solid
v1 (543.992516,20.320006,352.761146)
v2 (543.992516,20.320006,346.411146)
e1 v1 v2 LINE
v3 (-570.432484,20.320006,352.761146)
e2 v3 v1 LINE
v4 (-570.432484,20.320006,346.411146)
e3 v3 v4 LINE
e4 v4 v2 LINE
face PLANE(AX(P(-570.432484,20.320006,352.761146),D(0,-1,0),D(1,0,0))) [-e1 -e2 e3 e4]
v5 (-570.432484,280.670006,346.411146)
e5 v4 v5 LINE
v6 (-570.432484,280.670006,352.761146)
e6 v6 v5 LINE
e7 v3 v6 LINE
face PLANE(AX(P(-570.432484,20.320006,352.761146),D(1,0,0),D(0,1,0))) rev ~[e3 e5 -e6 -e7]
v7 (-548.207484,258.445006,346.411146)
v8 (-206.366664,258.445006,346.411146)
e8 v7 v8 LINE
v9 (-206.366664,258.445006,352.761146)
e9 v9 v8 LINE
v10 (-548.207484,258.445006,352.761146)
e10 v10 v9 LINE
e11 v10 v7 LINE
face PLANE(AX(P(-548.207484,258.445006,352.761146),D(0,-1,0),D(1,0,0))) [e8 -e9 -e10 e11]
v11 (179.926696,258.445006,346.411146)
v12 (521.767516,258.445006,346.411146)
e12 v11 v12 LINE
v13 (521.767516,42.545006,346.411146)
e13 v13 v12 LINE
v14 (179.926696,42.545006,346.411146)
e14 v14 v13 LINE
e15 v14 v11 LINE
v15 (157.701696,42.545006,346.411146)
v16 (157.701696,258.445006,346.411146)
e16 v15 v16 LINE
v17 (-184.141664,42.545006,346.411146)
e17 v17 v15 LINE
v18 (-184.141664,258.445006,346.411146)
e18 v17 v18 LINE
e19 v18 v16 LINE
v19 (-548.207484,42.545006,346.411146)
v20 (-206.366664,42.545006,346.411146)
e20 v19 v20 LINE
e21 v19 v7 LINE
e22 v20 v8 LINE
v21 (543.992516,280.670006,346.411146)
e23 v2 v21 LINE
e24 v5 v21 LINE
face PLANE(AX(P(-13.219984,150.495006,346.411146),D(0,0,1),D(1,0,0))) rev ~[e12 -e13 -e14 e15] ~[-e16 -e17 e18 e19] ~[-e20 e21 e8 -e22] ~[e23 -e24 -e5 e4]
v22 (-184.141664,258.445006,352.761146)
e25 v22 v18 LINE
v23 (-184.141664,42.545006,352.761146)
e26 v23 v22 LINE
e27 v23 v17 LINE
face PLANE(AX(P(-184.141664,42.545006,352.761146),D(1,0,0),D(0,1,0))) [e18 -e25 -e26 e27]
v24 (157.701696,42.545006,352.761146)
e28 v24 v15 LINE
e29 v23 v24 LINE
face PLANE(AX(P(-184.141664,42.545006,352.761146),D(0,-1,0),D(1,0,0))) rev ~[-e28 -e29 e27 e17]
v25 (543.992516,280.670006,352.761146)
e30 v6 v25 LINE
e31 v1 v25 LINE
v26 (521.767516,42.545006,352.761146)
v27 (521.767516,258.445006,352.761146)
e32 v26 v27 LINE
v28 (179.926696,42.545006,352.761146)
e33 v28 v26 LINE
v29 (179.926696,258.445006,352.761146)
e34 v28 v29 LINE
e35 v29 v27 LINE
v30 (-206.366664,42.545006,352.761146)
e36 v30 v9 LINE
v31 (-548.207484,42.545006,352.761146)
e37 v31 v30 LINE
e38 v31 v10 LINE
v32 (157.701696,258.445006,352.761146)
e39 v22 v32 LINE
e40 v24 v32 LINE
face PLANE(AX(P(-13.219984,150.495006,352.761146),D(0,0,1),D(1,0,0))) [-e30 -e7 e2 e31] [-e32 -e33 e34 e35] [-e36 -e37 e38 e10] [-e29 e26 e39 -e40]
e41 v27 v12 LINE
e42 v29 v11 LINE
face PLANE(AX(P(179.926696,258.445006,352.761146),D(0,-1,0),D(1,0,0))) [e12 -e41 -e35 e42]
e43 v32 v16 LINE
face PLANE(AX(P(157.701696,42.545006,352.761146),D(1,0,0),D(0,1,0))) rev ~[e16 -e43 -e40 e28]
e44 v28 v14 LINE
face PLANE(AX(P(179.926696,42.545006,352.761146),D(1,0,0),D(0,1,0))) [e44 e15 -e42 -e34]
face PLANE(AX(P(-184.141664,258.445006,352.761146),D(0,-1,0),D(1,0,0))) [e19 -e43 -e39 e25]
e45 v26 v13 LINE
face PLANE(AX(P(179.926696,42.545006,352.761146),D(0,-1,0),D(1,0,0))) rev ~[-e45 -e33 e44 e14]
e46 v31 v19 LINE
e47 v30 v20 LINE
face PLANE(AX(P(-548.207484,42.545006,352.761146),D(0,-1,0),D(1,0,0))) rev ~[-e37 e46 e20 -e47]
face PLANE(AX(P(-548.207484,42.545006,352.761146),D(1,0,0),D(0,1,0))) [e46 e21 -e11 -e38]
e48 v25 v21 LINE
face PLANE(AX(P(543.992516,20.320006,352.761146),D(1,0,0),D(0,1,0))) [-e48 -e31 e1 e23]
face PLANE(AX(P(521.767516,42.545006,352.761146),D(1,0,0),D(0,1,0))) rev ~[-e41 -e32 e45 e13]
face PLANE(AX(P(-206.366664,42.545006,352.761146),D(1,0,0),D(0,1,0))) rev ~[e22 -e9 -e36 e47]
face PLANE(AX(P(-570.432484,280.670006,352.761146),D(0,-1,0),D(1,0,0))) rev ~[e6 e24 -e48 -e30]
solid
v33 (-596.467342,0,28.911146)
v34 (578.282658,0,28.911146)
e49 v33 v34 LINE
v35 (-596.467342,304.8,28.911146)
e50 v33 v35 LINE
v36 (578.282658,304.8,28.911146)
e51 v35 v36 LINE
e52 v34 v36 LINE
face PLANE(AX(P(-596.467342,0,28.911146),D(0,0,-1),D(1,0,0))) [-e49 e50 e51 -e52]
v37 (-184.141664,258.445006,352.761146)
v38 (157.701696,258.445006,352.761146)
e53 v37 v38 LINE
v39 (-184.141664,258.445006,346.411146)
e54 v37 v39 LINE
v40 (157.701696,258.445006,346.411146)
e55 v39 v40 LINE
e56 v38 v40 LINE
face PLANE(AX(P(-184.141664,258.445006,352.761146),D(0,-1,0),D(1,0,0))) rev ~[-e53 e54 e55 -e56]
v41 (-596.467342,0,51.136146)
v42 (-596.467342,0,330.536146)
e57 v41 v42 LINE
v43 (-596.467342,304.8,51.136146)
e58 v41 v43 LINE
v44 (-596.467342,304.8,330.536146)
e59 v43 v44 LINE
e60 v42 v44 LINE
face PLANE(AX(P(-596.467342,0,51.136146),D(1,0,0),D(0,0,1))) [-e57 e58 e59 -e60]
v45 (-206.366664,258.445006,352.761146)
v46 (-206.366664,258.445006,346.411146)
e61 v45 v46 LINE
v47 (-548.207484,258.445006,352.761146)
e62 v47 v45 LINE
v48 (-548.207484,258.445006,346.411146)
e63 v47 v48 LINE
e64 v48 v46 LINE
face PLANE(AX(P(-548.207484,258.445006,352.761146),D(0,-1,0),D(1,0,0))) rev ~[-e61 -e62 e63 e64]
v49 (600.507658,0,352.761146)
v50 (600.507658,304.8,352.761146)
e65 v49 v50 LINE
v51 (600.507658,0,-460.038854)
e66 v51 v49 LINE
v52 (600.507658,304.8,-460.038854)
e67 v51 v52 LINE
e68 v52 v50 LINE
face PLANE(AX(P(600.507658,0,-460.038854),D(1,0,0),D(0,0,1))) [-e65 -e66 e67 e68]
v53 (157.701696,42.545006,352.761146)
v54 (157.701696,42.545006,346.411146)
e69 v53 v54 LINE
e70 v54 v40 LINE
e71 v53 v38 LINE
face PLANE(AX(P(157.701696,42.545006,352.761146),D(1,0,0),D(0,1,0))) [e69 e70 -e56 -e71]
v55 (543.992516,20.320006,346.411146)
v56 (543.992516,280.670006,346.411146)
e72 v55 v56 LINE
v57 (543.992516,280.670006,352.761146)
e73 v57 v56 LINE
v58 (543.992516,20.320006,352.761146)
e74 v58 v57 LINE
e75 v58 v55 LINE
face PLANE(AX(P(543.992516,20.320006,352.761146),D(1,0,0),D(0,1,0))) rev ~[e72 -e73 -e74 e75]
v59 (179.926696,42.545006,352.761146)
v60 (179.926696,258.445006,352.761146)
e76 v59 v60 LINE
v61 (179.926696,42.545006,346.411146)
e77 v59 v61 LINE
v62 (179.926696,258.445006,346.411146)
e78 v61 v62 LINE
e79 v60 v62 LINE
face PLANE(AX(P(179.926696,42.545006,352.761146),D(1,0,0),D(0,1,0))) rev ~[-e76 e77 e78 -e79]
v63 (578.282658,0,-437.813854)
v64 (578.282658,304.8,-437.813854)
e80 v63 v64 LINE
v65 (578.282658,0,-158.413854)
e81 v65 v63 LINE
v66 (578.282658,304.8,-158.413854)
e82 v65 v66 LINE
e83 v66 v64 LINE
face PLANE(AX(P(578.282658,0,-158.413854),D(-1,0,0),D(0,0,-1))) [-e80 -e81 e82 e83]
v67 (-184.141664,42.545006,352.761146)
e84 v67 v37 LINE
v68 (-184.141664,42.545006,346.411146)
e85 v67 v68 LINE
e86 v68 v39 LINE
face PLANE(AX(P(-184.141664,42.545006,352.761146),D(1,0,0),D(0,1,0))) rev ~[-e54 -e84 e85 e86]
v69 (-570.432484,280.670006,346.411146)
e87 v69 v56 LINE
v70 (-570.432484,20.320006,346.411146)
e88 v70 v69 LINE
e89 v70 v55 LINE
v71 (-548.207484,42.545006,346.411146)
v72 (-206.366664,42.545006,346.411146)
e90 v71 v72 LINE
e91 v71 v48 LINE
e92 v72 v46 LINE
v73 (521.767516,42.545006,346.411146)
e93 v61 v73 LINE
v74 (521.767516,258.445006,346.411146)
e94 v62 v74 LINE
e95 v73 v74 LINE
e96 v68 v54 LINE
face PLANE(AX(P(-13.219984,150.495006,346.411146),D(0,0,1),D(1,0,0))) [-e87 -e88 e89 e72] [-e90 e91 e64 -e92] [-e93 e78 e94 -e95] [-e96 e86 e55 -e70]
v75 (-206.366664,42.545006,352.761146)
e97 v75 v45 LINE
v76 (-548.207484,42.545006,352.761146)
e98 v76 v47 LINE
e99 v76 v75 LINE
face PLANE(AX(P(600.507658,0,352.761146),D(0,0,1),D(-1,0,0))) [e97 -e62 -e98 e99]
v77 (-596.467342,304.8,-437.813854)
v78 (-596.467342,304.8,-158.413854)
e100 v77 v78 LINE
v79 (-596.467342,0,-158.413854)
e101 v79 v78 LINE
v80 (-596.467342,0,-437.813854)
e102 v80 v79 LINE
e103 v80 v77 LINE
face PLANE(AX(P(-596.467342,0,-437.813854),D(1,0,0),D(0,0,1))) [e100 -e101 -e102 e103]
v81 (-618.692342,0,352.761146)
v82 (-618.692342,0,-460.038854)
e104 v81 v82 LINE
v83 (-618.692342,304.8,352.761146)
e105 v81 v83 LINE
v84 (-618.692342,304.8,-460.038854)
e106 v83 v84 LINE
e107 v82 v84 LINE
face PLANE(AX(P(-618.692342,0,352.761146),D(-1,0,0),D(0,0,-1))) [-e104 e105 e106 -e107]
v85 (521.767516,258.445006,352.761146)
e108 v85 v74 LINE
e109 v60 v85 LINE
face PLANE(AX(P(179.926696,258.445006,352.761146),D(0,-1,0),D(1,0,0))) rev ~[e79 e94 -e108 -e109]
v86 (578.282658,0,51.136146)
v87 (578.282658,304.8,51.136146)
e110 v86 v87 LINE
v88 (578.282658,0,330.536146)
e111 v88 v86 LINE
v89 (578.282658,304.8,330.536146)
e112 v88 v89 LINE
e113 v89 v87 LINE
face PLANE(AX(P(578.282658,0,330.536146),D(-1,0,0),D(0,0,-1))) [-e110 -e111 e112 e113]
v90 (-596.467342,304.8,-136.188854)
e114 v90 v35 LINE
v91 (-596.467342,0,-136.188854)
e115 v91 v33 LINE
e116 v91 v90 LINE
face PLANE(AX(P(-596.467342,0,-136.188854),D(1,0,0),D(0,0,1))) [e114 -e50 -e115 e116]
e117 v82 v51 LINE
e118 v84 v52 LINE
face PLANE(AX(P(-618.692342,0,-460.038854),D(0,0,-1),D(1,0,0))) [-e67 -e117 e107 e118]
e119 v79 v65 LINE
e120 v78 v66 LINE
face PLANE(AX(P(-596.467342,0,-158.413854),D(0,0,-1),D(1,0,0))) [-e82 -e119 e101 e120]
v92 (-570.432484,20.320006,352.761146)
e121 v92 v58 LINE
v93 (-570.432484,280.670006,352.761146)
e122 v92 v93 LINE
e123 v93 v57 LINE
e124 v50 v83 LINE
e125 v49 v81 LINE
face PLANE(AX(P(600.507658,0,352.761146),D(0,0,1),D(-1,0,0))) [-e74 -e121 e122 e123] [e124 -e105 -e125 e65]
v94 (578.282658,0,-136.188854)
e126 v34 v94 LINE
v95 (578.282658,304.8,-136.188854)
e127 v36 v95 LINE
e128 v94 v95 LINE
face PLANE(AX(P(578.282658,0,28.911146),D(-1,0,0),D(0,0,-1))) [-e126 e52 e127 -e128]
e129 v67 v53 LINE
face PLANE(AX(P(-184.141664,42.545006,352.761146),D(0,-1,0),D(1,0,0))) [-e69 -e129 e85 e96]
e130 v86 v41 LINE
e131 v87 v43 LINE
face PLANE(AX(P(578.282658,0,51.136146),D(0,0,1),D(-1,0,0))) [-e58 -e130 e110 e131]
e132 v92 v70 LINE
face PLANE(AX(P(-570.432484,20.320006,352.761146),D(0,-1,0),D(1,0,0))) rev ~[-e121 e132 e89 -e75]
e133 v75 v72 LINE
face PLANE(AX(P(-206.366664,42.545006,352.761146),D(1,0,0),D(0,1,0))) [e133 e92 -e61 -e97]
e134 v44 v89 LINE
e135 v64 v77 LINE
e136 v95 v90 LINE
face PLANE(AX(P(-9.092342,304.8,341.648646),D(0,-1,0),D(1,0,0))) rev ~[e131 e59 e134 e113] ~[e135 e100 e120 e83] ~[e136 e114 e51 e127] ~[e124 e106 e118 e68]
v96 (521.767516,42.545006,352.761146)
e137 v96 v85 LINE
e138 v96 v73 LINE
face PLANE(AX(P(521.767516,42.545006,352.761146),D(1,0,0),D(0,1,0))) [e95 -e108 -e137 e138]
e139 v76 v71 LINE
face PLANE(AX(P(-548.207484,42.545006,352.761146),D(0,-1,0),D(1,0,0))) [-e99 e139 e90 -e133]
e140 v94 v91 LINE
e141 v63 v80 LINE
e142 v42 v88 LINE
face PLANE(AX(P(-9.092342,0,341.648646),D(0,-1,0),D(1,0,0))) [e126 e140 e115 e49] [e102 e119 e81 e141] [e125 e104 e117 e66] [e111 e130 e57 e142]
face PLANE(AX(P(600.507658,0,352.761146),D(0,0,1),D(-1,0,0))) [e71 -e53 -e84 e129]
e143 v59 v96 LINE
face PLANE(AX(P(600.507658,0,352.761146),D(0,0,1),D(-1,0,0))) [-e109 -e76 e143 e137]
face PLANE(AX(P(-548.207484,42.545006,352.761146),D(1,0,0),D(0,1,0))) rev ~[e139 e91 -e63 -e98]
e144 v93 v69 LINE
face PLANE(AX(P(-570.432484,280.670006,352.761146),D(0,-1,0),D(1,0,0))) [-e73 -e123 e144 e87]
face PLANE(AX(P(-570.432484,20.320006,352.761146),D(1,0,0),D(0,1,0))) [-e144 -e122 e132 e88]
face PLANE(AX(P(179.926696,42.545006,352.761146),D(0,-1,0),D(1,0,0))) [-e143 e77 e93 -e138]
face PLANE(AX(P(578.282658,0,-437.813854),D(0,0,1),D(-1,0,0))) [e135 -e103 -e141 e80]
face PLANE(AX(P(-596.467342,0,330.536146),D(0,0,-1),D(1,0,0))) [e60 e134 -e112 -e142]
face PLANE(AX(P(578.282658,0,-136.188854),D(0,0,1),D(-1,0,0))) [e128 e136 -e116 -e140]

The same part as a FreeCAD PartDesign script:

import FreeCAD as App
import Part
import Sketcher
Q = App.Units.Quantity


def add_polygon(sketch, points):
    """Adds a closed chain of lines whose ends are joined by coincident constraints."""
    first, n = sketch.GeometryCount, len(points)
    for a, b in zip(points, points[1:] + points[:1]):
        sketch.addGeometry(Part.LineSegment(App.Vector(*a, 0), App.Vector(*b, 0)), False)
    for i in range(n):
        sketch.addConstraint(Sketcher.Constraint("Coincident", first + i, 2, first + (i + 1) % n, 1))

doc = App.newDocument("Part")
params = doc.addObject("Spreadsheet::Sheet", "Params")
for row, (alias, value) in enumerate([
    ("sketch1_width", "48 in"),
    ("sketch1_height", "32 in"),
    ("sketch1_height2", "11 in"),
    ("sketch1_height3", "6.5 in"),
    ("sketch1_width2", "46.25 in"),
    ("pad1_length", "12 in"),
    ("sketch2_height", "8.5 in"),
    ("sketch2_height2", "10.25 in"),
    ("sketch2_width", "43.875 in"),
    ("pocket1_length", "0.25 in"),
    ("sketch3_height", "8.5 in"),
    ("sketch3_height2", "10.25 in"),
    ("sketch3_width", "43.875 in"),
    ("pad2_length", "0.25 in"),
], start=1):
    params.set(f"A{row}", alias)
    params.set(f"B{row}", "=" + value)
    params.setAlias(f"B{row}", alias)

body = doc.addObject("PartDesign::Body", "Body")

# Sketch on XZ plane
sketch1 = doc.addObject("Sketcher::SketchObject", "Sketch")
body.addObject(sketch1)
sketch1.AttachmentSupport = (doc.XZ_Plane, [""])
sketch1.MapMode = "FlatFace"
add_polygon(sketch1, [(601, 353), (-619, 353), (-619, -460), (601, -460)])  # lines 0-3
add_polygon(sketch1, [(-596, -438), (-596, -158), (578, -158), (578, -438)])  # lines 4-7
add_polygon(sketch1, [(-596, -136), (-596, 29), (578, 29), (578, -136)])  # lines 8-11
add_polygon(sketch1, [(-596, 51), (-596, 331), (578, 331), (578, 51)])  # lines 12-15
sketch1.addConstraint([
    Sketcher.Constraint("Horizontal", 0),
    Sketcher.Constraint("Vertical", 1),
    Sketcher.Constraint("Horizontal", 2),
    Sketcher.Constraint("Vertical", 3),
    Sketcher.Constraint("Vertical", 4),
    Sketcher.Constraint("Horizontal", 5),
    Sketcher.Constraint("Vertical", 6),
    Sketcher.Constraint("Horizontal", 7),
    Sketcher.Constraint("Vertical", 8),
    Sketcher.Constraint("Horizontal", 9),
    Sketcher.Constraint("Vertical", 10),
    Sketcher.Constraint("Horizontal", 11),
    Sketcher.Constraint("Vertical", 12),
    Sketcher.Constraint("Horizontal", 13),
    Sketcher.Constraint("Vertical", 14),
    Sketcher.Constraint("Horizontal", 15),
    Sketcher.Constraint("Vertical", 7, 2, 8, 2),
    Sketcher.Constraint("Vertical", 6, 2, 9, 2),
    Sketcher.Constraint("Vertical", 11, 2, 12, 2),
    Sketcher.Constraint("Vertical", 10, 2, 13, 2),
    Sketcher.Constraint("Equal", 6, 12),
    Sketcher.Constraint("DistanceX", 0, 2, 0, 1, Q("48 in")),
    Sketcher.Constraint("DistanceY", 1, 2, 1, 1, Q("32 in")),
    Sketcher.Constraint("DistanceY", 4, 1, 4, 2, Q("11 in")),
    Sketcher.Constraint("DistanceY", 8, 1, 8, 2, Q("6.5 in")),
    Sketcher.Constraint("DistanceX", 5, 1, 5, 2, Q("46.25 in")),
    Sketcher.Constraint("DistanceY", 8, 2, 0, 2, Q("12.75 in")),
    Sketcher.Constraint("DistanceY", 4, 2, 12, 2, Q("19.25 in")),
    Sketcher.Constraint("DistanceX", 1, 2, 4, 2, Q("0.875 in")),
    Sketcher.Constraint("DistanceY", 1, 2, 4, 2, Q("11.875 in")),
    Sketcher.Constraint("DistanceX", -1, 1, 2, 2, Q("600.507658 mm")),
    Sketcher.Constraint("DistanceY", -1, 1, 0, 2, Q("352.761146 mm")),
])
sketch1.setExpression("Constraints[37]", "Params.sketch1_width")
sketch1.setExpression("Constraints[38]", "Params.sketch1_height")
sketch1.setExpression("Constraints[39]", "Params.sketch1_height2")
sketch1.setExpression("Constraints[40]", "Params.sketch1_height3")
sketch1.setExpression("Constraints[41]", "Params.sketch1_width2")
pad1 = doc.addObject("PartDesign::Pad", "Pad")
body.addObject(pad1)
pad1.Profile = sketch1
pad1.setExpression("Length", "Params.pad1_length")
pad1.Reversed = True

# Sketch on XY plane
sketch2 = doc.addObject("Sketcher::SketchObject", "Sketch001")
body.addObject(sketch2)
sketch2.AttachmentSupport = (doc.XY_Plane, [""])
sketch2.MapMode = "FlatFace"
sketch2.AttachmentOffset = App.Placement(App.Vector(0, 0, 352.761146), App.Rotation())
add_polygon(sketch2, [(-570, 281), (-570, 20), (544, 20), (544, 281)])  # lines 0-3
add_polygon(sketch2, [(-206, 43), (-548, 43), (-548, 258), (-206, 258)])  # lines 4-7
add_polygon(sketch2, [(158, 43), (-184, 43), (-184, 258), (158, 258)])  # lines 8-11
add_polygon(sketch2, [(522, 43), (180, 43), (180, 258), (522, 258)])  # lines 12-15
sketch2.addConstraint([
    Sketcher.Constraint("Vertical", 0),
    Sketcher.Constraint("Horizontal", 1),
    Sketcher.Constraint("Vertical", 2),
    Sketcher.Constraint("Horizontal", 3),
    Sketcher.Constraint("Horizontal", 4),
    Sketcher.Constraint("Vertical", 5),
    Sketcher.Constraint("Horizontal", 6),
    Sketcher.Constraint("Vertical", 7),
    Sketcher.Constraint("Horizontal", 8),
    Sketcher.Constraint("Vertical", 9),
    Sketcher.Constraint("Horizontal", 10),
    Sketcher.Constraint("Vertical", 11),
    Sketcher.Constraint("Horizontal", 12),
    Sketcher.Constraint("Vertical", 13),
    Sketcher.Constraint("Horizontal", 14),
    Sketcher.Constraint("Vertical", 15),
    Sketcher.Constraint("Horizontal", 7, 2, 8, 2),
    Sketcher.Constraint("Horizontal", 6, 2, 9, 2),
    Sketcher.Constraint("Horizontal", 11, 2, 12, 2),
    Sketcher.Constraint("Horizontal", 10, 2, 13, 2),
    Sketcher.Constraint("Equal", 6, 12),
    Sketcher.Constraint("DistanceY", 5, 1, 5, 2, Q("8.5 in")),
    Sketcher.Constraint("DistanceX", 4, 2, 1, 2, Q("43 in")),
    Sketcher.Constraint("DistanceY", 0, 2, 0, 1, Q("10.25 in")),
    Sketcher.Constraint("DistanceX", 1, 1, 1, 2, Q("43.875 in")),
    Sketcher.Constraint("DistanceX", 4, 2, 4, 1, Q("13.4583 in")),
    Sketcher.Constraint("DistanceX", 8, 2, 8, 1, Q("13.4584 in")),
    Sketcher.Constraint("DistanceY", 0, 2, 4, 2, Q("0.875 in")),
    Sketcher.Constraint("DistanceX", 7, 2, 8, 2, Q("0.875 in")),
    Sketcher.Constraint("DistanceX", 11, 2, 12, 2, Q("0.875 in")),
    Sketcher.Constraint("DistanceX", 0, 2, -1, 1, Q("570.432484 mm")),
    Sketcher.Constraint("DistanceY", -1, 1, 0, 2, Q("20.320006 mm")),
])
sketch2.setExpression("Constraints[37]", "Params.sketch2_height")
sketch2.setExpression("Constraints[39]", "Params.sketch2_height2")
sketch2.setExpression("Constraints[40]", "Params.sketch2_width")
pocket1 = doc.addObject("PartDesign::Pocket", "Pocket")
body.addObject(pocket1)
pocket1.Profile = sketch2
pocket1.setExpression("Length", "Params.pocket1_length")
body2 = doc.addObject("PartDesign::Body", "Body001")

# Sketch on XY plane
sketch3 = doc.addObject("Sketcher::SketchObject", "Sketch002")
body2.addObject(sketch3)
sketch3.AttachmentSupport = (doc.getObject("XY_Plane001"), [""])
sketch3.MapMode = "FlatFace"
sketch3.AttachmentOffset = App.Placement(App.Vector(0, 0, 352.761146), App.Rotation())
add_polygon(sketch3, [(-570, 281), (-570, 20), (544, 20), (544, 281)])  # lines 0-3
add_polygon(sketch3, [(-206, 43), (-548, 43), (-548, 258), (-206, 258)])  # lines 4-7
add_polygon(sketch3, [(158, 43), (-184, 43), (-184, 258), (158, 258)])  # lines 8-11
add_polygon(sketch3, [(522, 43), (180, 43), (180, 258), (522, 258)])  # lines 12-15
sketch3.addConstraint([
    Sketcher.Constraint("Vertical", 0),
    Sketcher.Constraint("Horizontal", 1),
    Sketcher.Constraint("Vertical", 2),
    Sketcher.Constraint("Horizontal", 3),
    Sketcher.Constraint("Horizontal", 4),
    Sketcher.Constraint("Vertical", 5),
    Sketcher.Constraint("Horizontal", 6),
    Sketcher.Constraint("Vertical", 7),
    Sketcher.Constraint("Horizontal", 8),
    Sketcher.Constraint("Vertical", 9),
    Sketcher.Constraint("Horizontal", 10),
    Sketcher.Constraint("Vertical", 11),
    Sketcher.Constraint("Horizontal", 12),
    Sketcher.Constraint("Vertical", 13),
    Sketcher.Constraint("Horizontal", 14),
    Sketcher.Constraint("Vertical", 15),
    Sketcher.Constraint("Horizontal", 7, 2, 8, 2),
    Sketcher.Constraint("Horizontal", 6, 2, 9, 2),
    Sketcher.Constraint("Horizontal", 11, 2, 12, 2),
    Sketcher.Constraint("Horizontal", 10, 2, 13, 2),
    Sketcher.Constraint("Equal", 6, 12),
    Sketcher.Constraint("DistanceY", 5, 1, 5, 2, Q("8.5 in")),
    Sketcher.Constraint("DistanceX", 4, 2, 1, 2, Q("43 in")),
    Sketcher.Constraint("DistanceY", 0, 2, 0, 1, Q("10.25 in")),
    Sketcher.Constraint("DistanceX", 1, 1, 1, 2, Q("43.875 in")),
    Sketcher.Constraint("DistanceX", 4, 2, 4, 1, Q("13.4583 in")),
    Sketcher.Constraint("DistanceX", 8, 2, 8, 1, Q("13.4584 in")),
    Sketcher.Constraint("DistanceY", 0, 2, 4, 2, Q("0.875 in")),
    Sketcher.Constraint("DistanceX", 7, 2, 8, 2, Q("0.875 in")),
    Sketcher.Constraint("DistanceX", 11, 2, 12, 2, Q("0.875 in")),
    Sketcher.Constraint("DistanceX", 0, 2, -1, 1, Q("570.432484 mm")),
    Sketcher.Constraint("DistanceY", -1, 1, 0, 2, Q("20.320006 mm")),
])
sketch3.setExpression("Constraints[37]", "Params.sketch3_height")
sketch3.setExpression("Constraints[39]", "Params.sketch3_height2")
sketch3.setExpression("Constraints[40]", "Params.sketch3_width")
pad2 = doc.addObject("PartDesign::Pad", "Pad001")
body2.addObject(pad2)
pad2.Profile = sketch3
pad2.setExpression("Length", "Params.pad2_length")
pad2.Reversed = True

doc.recompute()
